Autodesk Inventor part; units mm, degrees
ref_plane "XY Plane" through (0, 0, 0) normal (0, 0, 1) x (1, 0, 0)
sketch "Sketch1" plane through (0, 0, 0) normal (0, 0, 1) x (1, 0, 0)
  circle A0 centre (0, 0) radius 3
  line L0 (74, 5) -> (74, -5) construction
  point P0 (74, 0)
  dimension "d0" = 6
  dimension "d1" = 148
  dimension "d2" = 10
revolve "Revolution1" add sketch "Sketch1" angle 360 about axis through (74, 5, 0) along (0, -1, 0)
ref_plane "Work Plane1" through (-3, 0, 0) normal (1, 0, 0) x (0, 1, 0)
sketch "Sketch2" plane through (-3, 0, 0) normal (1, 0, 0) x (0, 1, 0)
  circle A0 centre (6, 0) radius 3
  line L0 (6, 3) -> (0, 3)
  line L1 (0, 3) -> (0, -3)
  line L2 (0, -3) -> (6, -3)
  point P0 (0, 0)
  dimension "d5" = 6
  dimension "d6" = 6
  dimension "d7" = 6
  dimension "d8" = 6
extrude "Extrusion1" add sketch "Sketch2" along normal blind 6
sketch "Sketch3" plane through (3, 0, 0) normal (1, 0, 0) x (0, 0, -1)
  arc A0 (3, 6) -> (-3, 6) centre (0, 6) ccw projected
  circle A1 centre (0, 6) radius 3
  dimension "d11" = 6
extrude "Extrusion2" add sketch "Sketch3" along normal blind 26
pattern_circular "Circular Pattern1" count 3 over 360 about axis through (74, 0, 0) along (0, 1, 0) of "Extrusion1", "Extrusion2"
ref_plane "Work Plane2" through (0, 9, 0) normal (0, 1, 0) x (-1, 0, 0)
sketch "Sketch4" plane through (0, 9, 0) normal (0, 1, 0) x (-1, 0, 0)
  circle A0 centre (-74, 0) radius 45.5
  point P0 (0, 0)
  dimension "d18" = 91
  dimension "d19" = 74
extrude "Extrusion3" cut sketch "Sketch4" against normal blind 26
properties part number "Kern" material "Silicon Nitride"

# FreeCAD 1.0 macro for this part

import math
import FreeCAD as App
import Part
import Sketcher

V = App.Vector

doc = App.newDocument("Part")
body = doc.addObject("PartDesign::Body", "Body")

sketch1 = doc.addObject("Sketcher::SketchObject", "Sketch")
body.addObject(sketch1)
sketch1.AttachmentSupport = (doc.XY_Plane, [""])
sketch1.MapMode = "FlatFace"
sketch1.addGeometry(Part.Circle(V(0, 0, 0), V(0, 0, 1), 3), False)
sketch1.addGeometry(Part.LineSegment(V(74, 0, 0), V(74, -10, 0)), True)
sketch1.addConstraint([
    Sketcher.Constraint("Vertical", 1),
    Sketcher.Constraint("Coincident", 0, 3, -1, 1),
    Sketcher.Constraint("PointOnObject", 1, 1, -1),
    Sketcher.Constraint("Diameter", 0, 6.0),
    Sketcher.Constraint("DistanceY", 1, 2, 1, 1, 10.0),
    Sketcher.Constraint("DistanceX", -1, 1, 1, 1, 74.0),
])
revolution = doc.addObject("PartDesign::Revolution", "Revolution")
body.addObject(revolution)
revolution.Profile = sketch1
revolution.ReferenceAxis = (sketch1, ["Axis0"])
revolution.Angle = 360

sketch2 = doc.addObject("Sketcher::SketchObject", "Sketch001")
body.addObject(sketch2)
sketch2.AttachmentSupport = (doc.YZ_Plane, [""])
sketch2.MapMode = "FlatFace"
sketch2.AttachmentOffset = App.Placement(V(0, 0, -3), App.Rotation())
sketch2.addGeometry([
    Part.ArcOfCircle(Part.Circle(V(6, 0, 0), V(0, 0, 1), 3), math.radians(-90), math.radians(90)),
    Part.LineSegment(V(6, 3, 0), V(0, 3, 0)),
    Part.LineSegment(V(0, 3, 0), V(0, -3, 0)),
    Part.LineSegment(V(0, -3, 0), V(6, -3, 0)),
], False)
sketch2.addConstraint([
    Sketcher.Constraint("Tangent", 0, 2, 1, 1),
    Sketcher.Constraint("Coincident", 1, 2, 2, 1),
    Sketcher.Constraint("Coincident", 2, 2, 3, 1),
    Sketcher.Constraint("Tangent", 3, 2, 0, 1),
    Sketcher.Constraint("Horizontal", 1),
    Sketcher.Constraint("Vertical", 2),
    Sketcher.Constraint("Horizontal", 3),
    Sketcher.Constraint("Symmetric", 1, 2, 2, 2, -1, 1),
    Sketcher.Constraint("Equal", 3, 2),
    Sketcher.Constraint("Radius", 0, 3.0),
])
pad1 = doc.addObject("PartDesign::Pad", "Pad")
body.addObject(pad1)
pad1.Profile = sketch2
pad1.Length = 6

sketch3 = doc.addObject("Sketcher::SketchObject", "Sketch002")
body.addObject(sketch3)
sketch3.AttachmentSupport = (doc.YZ_Plane, [""])
sketch3.MapMode = "FlatFace"
sketch3.AttachmentOffset = App.Placement(V(0, 0, 3), App.Rotation())
sketch3.addGeometry(Part.Circle(V(6, 0, 0), V(0, 0, 1), 3), False)
sketch3.addConstraint([
    Sketcher.Constraint("PointOnObject", 0, 3, -1),
    Sketcher.Constraint("Diameter", 0, 6.0),
    Sketcher.Constraint("DistanceX", -1, 1, 0, 3, 6.0),
])
pad2 = doc.addObject("PartDesign::Pad", "Pad001")
body.addObject(pad2)
pad2.Profile = sketch3
pad2.Length = 26
doc.recompute()

datumline = doc.addObject("PartDesign::Line", "DatumLine")
body.addObject(datumline)
datumline.Placement = App.Placement(V(74, 0, 0), App.Rotation(V(0, 0, 1), V(0, 1, 0)))
polarpattern = doc.addObject("PartDesign::PolarPattern", "PolarPattern")
body.addObject(polarpattern)
polarpattern.Originals = [pad1, pad2]
polarpattern.Axis = (datumline, [""])
polarpattern.Angle = 360
polarpattern.Occurrences = 3
body.Tip = polarpattern

sketch4 = doc.addObject("Sketcher::SketchObject", "Sketch003")
body.addObject(sketch4)
sketch4.AttachmentSupport = (doc.XZ_Plane, [""])
sketch4.MapMode = "FlatFace"
sketch4.AttachmentOffset = App.Placement(V(0, 0, -9), App.Rotation())
sketch4.addGeometry(Part.Circle(V(74, 0, 0), V(0, 0, 1), 45.5), False)
sketch4.addConstraint([
    Sketcher.Constraint("PointOnObject", 0, 3, -1),
    Sketcher.Constraint("Diameter", 0, 91.0),
    Sketcher.Constraint("DistanceX", -1, 1, 0, 3, 74.0),
])
pocket1 = doc.addObject("PartDesign::Pocket", "Pocket")
body.addObject(pocket1)
pocket1.Profile = sketch4
pocket1.Length = 26
pocket1.Reversed = True

doc.recompute()
